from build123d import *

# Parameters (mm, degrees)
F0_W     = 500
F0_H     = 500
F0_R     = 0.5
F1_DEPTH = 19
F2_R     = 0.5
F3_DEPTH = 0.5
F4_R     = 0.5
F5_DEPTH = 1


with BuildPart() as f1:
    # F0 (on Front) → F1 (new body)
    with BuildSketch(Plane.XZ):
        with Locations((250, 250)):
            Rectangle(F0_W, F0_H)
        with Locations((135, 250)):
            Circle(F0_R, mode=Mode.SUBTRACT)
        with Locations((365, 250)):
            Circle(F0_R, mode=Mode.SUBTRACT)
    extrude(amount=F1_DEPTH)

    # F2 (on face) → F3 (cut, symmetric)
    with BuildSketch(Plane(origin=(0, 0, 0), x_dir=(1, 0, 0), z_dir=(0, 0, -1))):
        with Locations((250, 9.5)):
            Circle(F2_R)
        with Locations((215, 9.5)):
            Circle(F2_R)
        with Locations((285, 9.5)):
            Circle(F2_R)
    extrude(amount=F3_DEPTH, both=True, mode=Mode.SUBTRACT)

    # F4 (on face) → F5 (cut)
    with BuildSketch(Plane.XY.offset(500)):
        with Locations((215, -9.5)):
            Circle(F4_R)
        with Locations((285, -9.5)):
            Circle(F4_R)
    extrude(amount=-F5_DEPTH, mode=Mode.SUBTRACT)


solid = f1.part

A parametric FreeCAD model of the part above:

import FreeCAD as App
import Part
import Sketcher
from FreeCAD import Vector

doc = App.newDocument("Part")
params = doc.addObject("Spreadsheet::Sheet", "Params")
for row, (alias, value) in enumerate([
    ("sketch1_diameter", "1 mm"),
    ("sketch1_width", "500 mm"),
    ("pad1_length", "19 mm"),
    ("sketch2_diameter", "1 mm"),
    ("pocket1_length", "1 mm"),
    ("sketch3_diameter", "1 mm"),
    ("pocket2_length", "1 mm"),
], start=1):
    params.set(f"A{row}", alias)
    params.set(f"B{row}", "=" + value)
    params.setAlias(f"B{row}", alias)

body = doc.addObject("PartDesign::Body", "Body")

sketch1 = doc.addObject("Sketcher::SketchObject", "Sketch")
body.addObject(sketch1)
sketch1.AttachmentSupport = (doc.XZ_Plane, [""])
sketch1.MapMode = "FlatFace"
sketch1.addGeometry([
    Part.LineSegment(Vector(0, 500, 0), Vector(0, 0, 0)),
    Part.LineSegment(Vector(0, 0, 0), Vector(500, 0, 0)),
    Part.LineSegment(Vector(500, 0, 0), Vector(500, 500, 0)),
    Part.LineSegment(Vector(500, 500, 0), Vector(0, 500, 0)),
    Part.Circle(Vector(135, 250, 0), Vector(0, 0, 1), 0.5),
    Part.Circle(Vector(365, 250, 0), Vector(0, 0, 1), 0.5),
], False)
sketch1.addConstraint([
    Sketcher.Constraint("Coincident", 0, 2, 1, 1),
    Sketcher.Constraint("Coincident", 1, 2, 2, 1),
    Sketcher.Constraint("Coincident", 2, 2, 3, 1),
    Sketcher.Constraint("Coincident", 3, 2, 0, 1),
    Sketcher.Constraint("Vertical", 0),
    Sketcher.Constraint("Horizontal", 1),
    Sketcher.Constraint("Vertical", 2),
    Sketcher.Constraint("Horizontal", 3),
    Sketcher.Constraint("Coincident", 0, 2, -1, 1),
    Sketcher.Constraint("Equal", 4, 5),
    Sketcher.Constraint("Horizontal", 4, 3, 5, 3),
    Sketcher.Constraint("Equal", 3, 0),
    Sketcher.Constraint("Diameter", 4, 1.0),
    Sketcher.Constraint("DistanceX", 1, 1, 1, 2, 500.0),
    Sketcher.Constraint("DistanceX", -1, 1, 4, 3, 135.0),
    Sketcher.Constraint("DistanceY", -1, 1, 4, 3, 250.0),
    Sketcher.Constraint("DistanceX", -1, 1, 5, 3, 365.0),
])
sketch1.setExpression("Constraints[12]", "Params.sketch1_diameter")
sketch1.setExpression("Constraints[13]", "Params.sketch1_width")
pad1 = doc.addObject("PartDesign::Pad", "Pad")
body.addObject(pad1)
pad1.Profile = sketch1
pad1.setExpression("Length", "Params.pad1_length")

sketch2 = doc.addObject("Sketcher::SketchObject", "Sketch001")
body.addObject(sketch2)
sketch2.AttachmentSupport = (doc.XY_Plane, [""])
sketch2.MapMode = "FlatFace"
sketch2.addGeometry([
    Part.Circle(Vector(250, -9.5, 0), Vector(0, 0, 1), 0.5),
    Part.Circle(Vector(215, -9.5, 0), Vector(0, 0, 1), 0.5),
    Part.Circle(Vector(285, -9.5, 0), Vector(0, 0, 1), 0.5),
], False)
sketch2.addConstraint([
    Sketcher.Constraint("Equal", 0, 1),
    Sketcher.Constraint("Equal", 1, 2),
    Sketcher.Constraint("Horizontal", 0, 3, 1, 3),
    Sketcher.Constraint("Horizontal", 1, 3, 2, 3),
    Sketcher.Constraint("Diameter", 0, 1.0),
    Sketcher.Constraint("DistanceX", -1, 1, 0, 3, 250.0),
    Sketcher.Constraint("DistanceX", -1, 1, 1, 3, 215.0),
    Sketcher.Constraint("DistanceX", -1, 1, 2, 3, 285.0),
    Sketcher.Constraint("DistanceY", 0, 3, -1, 1, 9.5),
])
sketch2.setExpression("Constraints[4]", "Params.sketch2_diameter")
pocket1 = doc.addObject("PartDesign::Pocket", "Pocket")
body.addObject(pocket1)
pocket1.Profile = sketch2
pocket1.setExpression("Length", "Params.pocket1_length")
pocket1.Midplane = True

sketch3 = doc.addObject("Sketcher::SketchObject", "Sketch002")
body.addObject(sketch3)
sketch3.AttachmentSupport = (doc.XY_Plane, [""])
sketch3.MapMode = "FlatFace"
sketch3.AttachmentOffset = App.Placement(Vector(0, 0, 500), App.Rotation())
sketch3.addGeometry([
    Part.Circle(Vector(215, -9.5, 0), Vector(0, 0, 1), 0.5),
    Part.Circle(Vector(285, -9.5, 0), Vector(0, 0, 1), 0.5),
], False)
sketch3.addConstraint([
    Sketcher.Constraint("Equal", 0, 1),
    Sketcher.Constraint("Horizontal", 0, 3, 1, 3),
    Sketcher.Constraint("Diameter", 0, 1.0),
    Sketcher.Constraint("DistanceX", -1, 1, 0, 3, 215.0),
    Sketcher.Constraint("DistanceX", -1, 1, 1, 3, 285.0),
    Sketcher.Constraint("DistanceY", 0, 3, -1, 1, 9.5),
])
sketch3.setExpression("Constraints[2]", "Params.sketch3_diameter")
pocket2 = doc.addObject("PartDesign::Pocket", "Pocket001")
body.addObject(pocket2)
pocket2.Profile = sketch3
pocket2.setExpression("Length", "Params.pocket2_length")

doc.recompute()
